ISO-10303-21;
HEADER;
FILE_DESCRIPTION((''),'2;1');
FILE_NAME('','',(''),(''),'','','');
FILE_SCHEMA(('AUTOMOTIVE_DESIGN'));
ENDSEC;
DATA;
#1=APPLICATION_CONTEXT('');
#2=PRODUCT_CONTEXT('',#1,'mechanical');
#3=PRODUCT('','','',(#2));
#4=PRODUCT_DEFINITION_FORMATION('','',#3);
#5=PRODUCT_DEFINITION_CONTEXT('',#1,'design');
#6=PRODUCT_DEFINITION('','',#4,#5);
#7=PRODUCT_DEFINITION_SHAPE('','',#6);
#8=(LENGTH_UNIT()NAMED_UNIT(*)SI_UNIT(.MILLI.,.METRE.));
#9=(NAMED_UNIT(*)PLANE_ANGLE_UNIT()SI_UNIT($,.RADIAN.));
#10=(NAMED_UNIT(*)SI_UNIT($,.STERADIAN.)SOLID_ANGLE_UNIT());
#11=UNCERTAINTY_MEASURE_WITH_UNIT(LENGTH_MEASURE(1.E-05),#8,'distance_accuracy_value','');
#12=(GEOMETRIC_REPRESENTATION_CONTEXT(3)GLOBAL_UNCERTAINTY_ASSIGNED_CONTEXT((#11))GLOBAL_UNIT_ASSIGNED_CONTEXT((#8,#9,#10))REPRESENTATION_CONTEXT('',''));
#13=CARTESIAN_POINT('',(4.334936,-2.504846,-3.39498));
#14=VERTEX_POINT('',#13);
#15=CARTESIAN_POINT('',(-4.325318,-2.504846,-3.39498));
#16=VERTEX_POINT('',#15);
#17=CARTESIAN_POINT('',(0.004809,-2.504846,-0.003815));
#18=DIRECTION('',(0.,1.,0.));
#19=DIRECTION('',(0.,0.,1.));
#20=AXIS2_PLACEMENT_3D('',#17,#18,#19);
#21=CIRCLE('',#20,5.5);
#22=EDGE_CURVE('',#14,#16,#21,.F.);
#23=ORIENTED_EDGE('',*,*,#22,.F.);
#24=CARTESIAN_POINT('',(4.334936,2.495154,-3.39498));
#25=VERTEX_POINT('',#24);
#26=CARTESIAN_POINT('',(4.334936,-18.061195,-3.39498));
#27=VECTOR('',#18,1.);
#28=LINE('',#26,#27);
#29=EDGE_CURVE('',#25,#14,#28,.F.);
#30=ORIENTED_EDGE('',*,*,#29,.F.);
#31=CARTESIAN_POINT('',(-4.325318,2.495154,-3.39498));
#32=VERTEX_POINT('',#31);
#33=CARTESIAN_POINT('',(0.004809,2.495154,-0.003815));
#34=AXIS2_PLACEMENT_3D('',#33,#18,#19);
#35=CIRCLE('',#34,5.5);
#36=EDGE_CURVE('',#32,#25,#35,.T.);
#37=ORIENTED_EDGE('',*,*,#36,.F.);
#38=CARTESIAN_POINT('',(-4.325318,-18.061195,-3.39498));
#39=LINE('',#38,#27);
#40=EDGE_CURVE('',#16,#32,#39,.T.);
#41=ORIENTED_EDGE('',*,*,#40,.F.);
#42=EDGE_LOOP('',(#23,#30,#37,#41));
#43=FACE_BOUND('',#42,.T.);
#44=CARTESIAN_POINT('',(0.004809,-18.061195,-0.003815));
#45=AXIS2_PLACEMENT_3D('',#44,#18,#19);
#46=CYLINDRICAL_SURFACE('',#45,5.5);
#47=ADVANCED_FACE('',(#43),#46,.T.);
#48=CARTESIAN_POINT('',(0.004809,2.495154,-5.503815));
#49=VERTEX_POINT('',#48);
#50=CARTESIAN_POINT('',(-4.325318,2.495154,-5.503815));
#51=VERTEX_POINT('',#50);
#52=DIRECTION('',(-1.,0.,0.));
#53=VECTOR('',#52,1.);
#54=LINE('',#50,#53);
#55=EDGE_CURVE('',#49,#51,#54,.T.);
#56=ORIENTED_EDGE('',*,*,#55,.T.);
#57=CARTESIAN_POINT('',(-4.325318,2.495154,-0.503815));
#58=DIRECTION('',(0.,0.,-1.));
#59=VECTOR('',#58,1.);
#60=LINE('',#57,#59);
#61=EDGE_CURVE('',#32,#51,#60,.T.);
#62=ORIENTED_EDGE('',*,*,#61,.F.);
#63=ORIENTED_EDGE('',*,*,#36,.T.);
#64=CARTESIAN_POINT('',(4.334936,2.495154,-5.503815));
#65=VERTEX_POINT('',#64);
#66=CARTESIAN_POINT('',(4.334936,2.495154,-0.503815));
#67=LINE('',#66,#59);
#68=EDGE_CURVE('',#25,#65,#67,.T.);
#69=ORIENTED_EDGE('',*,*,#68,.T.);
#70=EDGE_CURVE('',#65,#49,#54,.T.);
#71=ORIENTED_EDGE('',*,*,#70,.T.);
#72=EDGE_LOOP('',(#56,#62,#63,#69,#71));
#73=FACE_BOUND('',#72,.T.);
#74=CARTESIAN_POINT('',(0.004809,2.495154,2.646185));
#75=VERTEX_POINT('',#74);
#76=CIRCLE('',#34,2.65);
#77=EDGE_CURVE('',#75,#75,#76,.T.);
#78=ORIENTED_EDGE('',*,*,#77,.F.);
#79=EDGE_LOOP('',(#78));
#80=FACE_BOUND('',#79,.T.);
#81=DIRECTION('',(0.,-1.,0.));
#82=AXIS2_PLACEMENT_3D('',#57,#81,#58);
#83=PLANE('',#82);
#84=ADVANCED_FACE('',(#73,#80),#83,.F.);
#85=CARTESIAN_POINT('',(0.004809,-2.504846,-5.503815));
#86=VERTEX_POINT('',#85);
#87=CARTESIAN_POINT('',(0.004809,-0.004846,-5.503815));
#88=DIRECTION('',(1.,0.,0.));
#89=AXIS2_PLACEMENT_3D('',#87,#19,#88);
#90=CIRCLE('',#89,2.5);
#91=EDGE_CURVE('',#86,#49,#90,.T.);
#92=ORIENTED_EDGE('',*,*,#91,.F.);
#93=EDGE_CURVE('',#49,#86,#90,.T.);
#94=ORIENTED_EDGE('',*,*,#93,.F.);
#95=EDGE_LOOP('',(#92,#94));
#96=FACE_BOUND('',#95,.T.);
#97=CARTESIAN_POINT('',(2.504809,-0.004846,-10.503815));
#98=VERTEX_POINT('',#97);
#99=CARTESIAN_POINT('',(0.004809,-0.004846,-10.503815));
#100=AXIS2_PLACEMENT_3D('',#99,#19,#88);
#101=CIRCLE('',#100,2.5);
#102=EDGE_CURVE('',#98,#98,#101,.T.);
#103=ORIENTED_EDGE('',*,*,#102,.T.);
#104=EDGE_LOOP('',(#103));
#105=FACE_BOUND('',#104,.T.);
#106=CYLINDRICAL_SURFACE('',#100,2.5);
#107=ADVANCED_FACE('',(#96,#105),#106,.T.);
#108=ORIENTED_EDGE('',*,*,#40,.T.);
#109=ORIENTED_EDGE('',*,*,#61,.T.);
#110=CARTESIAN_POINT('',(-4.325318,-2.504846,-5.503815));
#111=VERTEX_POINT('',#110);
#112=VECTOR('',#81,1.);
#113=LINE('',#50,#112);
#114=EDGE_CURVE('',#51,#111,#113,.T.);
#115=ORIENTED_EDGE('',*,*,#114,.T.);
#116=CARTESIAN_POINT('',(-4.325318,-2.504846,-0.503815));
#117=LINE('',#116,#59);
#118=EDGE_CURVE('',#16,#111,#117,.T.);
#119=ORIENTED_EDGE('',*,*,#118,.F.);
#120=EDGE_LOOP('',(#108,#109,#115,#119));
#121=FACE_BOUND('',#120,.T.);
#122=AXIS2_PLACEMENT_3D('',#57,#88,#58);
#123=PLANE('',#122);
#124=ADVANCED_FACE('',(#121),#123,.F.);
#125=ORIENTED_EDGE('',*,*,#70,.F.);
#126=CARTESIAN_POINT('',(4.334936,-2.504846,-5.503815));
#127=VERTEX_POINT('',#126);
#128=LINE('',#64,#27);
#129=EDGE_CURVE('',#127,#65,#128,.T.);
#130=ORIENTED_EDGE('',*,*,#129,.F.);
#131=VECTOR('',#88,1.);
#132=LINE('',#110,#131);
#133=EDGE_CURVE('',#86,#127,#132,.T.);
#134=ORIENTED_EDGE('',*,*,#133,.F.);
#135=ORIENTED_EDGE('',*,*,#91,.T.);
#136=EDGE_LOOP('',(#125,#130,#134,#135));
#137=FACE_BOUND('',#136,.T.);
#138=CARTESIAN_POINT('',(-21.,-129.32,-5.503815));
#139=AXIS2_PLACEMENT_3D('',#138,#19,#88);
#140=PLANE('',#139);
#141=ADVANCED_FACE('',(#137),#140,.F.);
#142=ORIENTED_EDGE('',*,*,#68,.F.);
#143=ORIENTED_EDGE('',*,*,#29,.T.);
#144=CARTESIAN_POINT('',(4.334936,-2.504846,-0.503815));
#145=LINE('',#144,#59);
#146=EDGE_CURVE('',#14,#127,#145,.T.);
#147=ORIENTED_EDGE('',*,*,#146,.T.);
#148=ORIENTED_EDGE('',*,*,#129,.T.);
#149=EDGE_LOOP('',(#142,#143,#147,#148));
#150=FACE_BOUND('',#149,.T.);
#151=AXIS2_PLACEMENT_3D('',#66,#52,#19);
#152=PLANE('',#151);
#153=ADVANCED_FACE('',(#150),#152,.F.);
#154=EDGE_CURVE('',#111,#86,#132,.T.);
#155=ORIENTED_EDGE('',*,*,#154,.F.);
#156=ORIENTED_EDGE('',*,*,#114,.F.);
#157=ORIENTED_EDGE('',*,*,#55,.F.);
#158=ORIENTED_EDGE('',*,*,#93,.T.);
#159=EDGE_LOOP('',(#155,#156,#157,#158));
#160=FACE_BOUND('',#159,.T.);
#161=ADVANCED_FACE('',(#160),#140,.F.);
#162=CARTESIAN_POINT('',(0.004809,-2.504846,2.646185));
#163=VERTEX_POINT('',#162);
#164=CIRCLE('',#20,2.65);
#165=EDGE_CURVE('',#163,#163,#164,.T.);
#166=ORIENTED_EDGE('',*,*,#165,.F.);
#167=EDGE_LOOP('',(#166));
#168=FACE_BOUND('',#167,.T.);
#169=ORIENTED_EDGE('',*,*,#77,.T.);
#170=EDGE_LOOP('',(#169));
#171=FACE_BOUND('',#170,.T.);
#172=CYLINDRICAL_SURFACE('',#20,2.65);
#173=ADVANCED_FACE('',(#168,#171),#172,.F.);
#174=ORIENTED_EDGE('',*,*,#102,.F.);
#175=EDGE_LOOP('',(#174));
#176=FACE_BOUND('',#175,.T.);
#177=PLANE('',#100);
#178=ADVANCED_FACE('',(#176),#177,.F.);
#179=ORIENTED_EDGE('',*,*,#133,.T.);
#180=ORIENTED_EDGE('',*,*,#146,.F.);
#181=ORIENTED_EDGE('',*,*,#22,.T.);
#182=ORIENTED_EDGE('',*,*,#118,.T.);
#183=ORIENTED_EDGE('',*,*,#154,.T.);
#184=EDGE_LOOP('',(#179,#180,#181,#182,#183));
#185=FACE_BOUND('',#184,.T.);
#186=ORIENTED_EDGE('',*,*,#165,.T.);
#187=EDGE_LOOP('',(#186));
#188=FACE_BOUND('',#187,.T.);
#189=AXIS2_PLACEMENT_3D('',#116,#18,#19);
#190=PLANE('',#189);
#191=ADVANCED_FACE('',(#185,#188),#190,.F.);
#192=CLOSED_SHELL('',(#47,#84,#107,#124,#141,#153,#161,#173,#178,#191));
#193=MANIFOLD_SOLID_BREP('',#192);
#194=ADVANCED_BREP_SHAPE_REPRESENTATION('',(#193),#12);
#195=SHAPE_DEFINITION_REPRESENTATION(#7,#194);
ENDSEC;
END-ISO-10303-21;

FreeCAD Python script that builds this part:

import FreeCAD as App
import Part
import Sketcher

V = App.Vector


def add_polygon(sketch, points):
    """Adds a closed chain of lines whose ends are joined by coincident constraints."""
    first, n = sketch.GeometryCount, len(points)
    for a, b in zip(points, points[1:] + points[:1]):
        sketch.addGeometry(Part.LineSegment(App.Vector(*a, 0), App.Vector(*b, 0)), False)
    for i in range(n):
        sketch.addConstraint(Sketcher.Constraint("Coincident", first + i, 2, first + (i + 1) % n, 1))

doc = App.newDocument("Part")
body = doc.addObject("PartDesign::Body", "Body")

# Sketch on XY plane
sketch1 = body.newObject("Sketcher::SketchObject", "Sketch")
sketch1.AttachmentSupport = (doc.getObject("XY_Plane"), [""])
sketch1.MapMode = "FlatFace"
sketch1.AttachmentOffset = App.Placement(V(0, 0, 2.596185), App.Rotation())
sketch1.addGeometry(Part.Circle(V(21, 129.3, 0), V(0, 0, 1), 2.5), False)
sketch1.addConstraint([
    Sketcher.Constraint("Diameter", 0, 5.0),
    Sketcher.Constraint("DistanceX", -1, 1, 0, 3, 21.004809),
    Sketcher.Constraint("DistanceY", -1, 1, 0, 3, 129.315154),
])
pad1 = body.newObject("PartDesign::Pad", "Pad")
pad1.Profile = sketch1
pad1.Length = 5
pad1.Reversed = True

# Sketch on XY plane
sketch2 = body.newObject("Sketcher::SketchObject", "Sketch001")
sketch2.AttachmentSupport = (doc.getObject("XY_Plane"), [""])
sketch2.MapMode = "FlatFace"
sketch2.AttachmentOffset = App.Placement(V(0, 0, 2.596185), App.Rotation())
add_polygon(sketch2, [(16.7, 131.8), (16.7, 126.8), (25.3, 126.8), (25.3, 131.8)])  # lines 0-3
sketch2.addConstraint([
    Sketcher.Constraint("Vertical", 0),
    Sketcher.Constraint("Horizontal", 1),
    Sketcher.Constraint("Vertical", 2),
    Sketcher.Constraint("Horizontal", 3),
    Sketcher.Constraint("DistanceY", 0, 2, 0, 1, 5.0),
    Sketcher.Constraint("DistanceX", 1, 1, 1, 2, 8.660254),
    Sketcher.Constraint("DistanceX", -1, 1, 0, 2, 16.674682),
    Sketcher.Constraint("DistanceY", -1, 1, 0, 2, 126.815154),
])
pad2 = body.newObject("PartDesign::Pad", "Pad001")
pad2.Profile = sketch2
pad2.Length = 5

# Sketch on XZ plane
sketch3 = body.newObject("Sketcher::SketchObject", "Sketch002")
sketch3.AttachmentSupport = (doc.getObject("XZ_Plane"), [""])
sketch3.MapMode = "FlatFace"
sketch3.AttachmentOffset = App.Placement(V(0, 0, -131.815154), App.Rotation())
sketch3.addGeometry(Part.Circle(V(21, 8, 0), V(0, 0, 1), 6), False)
sketch3.addConstraint([
    Sketcher.Constraint("Diameter", 0, 11.0),
    Sketcher.Constraint("DistanceX", -1, 1, 0, 3, 21.004809),
    Sketcher.Constraint("DistanceY", -1, 1, 0, 3, 8.096185),
])
pad3 = body.newObject("PartDesign::Pad", "Pad002")
pad3.Profile = sketch3
pad3.Length = 5

# Sketch on XZ plane
sketch4 = body.newObject("Sketcher::SketchObject", "Sketch003")
sketch4.AttachmentSupport = (doc.getObject("XZ_Plane"), [""])
sketch4.MapMode = "FlatFace"
sketch4.AttachmentOffset = App.Placement(V(0, 0, -131.815154), App.Rotation())
sketch4.addGeometry(Part.Circle(V(21, 8.1, 0), V(0, 0, 1), 2.6), False)
sketch4.addConstraint([
    Sketcher.Constraint("Diameter", 0, 5.3),
    Sketcher.Constraint("DistanceX", -1, 1, 0, 3, 21.004809),
    Sketcher.Constraint("DistanceY", -1, 1, 0, 3, 8.096185),
])
pocket1 = body.newObject("PartDesign::Pocket", "Pocket")
pocket1.Profile = sketch4
pocket1.Type = "ThroughAll"
pocket1.Reversed = True
body2 = doc.addObject("PartDesign::Body", "Body001")
doc.recompute()

body.Placement = App.Placement(V(-21, -129.32, -8.1), App.Rotation(V(0, 0, 1), 0))
boolean = body2.newObject("PartDesign::Boolean", "Boolean")
boolean.Type = "Fuse"
boolean.addObjects([body])

doc.recompute()
